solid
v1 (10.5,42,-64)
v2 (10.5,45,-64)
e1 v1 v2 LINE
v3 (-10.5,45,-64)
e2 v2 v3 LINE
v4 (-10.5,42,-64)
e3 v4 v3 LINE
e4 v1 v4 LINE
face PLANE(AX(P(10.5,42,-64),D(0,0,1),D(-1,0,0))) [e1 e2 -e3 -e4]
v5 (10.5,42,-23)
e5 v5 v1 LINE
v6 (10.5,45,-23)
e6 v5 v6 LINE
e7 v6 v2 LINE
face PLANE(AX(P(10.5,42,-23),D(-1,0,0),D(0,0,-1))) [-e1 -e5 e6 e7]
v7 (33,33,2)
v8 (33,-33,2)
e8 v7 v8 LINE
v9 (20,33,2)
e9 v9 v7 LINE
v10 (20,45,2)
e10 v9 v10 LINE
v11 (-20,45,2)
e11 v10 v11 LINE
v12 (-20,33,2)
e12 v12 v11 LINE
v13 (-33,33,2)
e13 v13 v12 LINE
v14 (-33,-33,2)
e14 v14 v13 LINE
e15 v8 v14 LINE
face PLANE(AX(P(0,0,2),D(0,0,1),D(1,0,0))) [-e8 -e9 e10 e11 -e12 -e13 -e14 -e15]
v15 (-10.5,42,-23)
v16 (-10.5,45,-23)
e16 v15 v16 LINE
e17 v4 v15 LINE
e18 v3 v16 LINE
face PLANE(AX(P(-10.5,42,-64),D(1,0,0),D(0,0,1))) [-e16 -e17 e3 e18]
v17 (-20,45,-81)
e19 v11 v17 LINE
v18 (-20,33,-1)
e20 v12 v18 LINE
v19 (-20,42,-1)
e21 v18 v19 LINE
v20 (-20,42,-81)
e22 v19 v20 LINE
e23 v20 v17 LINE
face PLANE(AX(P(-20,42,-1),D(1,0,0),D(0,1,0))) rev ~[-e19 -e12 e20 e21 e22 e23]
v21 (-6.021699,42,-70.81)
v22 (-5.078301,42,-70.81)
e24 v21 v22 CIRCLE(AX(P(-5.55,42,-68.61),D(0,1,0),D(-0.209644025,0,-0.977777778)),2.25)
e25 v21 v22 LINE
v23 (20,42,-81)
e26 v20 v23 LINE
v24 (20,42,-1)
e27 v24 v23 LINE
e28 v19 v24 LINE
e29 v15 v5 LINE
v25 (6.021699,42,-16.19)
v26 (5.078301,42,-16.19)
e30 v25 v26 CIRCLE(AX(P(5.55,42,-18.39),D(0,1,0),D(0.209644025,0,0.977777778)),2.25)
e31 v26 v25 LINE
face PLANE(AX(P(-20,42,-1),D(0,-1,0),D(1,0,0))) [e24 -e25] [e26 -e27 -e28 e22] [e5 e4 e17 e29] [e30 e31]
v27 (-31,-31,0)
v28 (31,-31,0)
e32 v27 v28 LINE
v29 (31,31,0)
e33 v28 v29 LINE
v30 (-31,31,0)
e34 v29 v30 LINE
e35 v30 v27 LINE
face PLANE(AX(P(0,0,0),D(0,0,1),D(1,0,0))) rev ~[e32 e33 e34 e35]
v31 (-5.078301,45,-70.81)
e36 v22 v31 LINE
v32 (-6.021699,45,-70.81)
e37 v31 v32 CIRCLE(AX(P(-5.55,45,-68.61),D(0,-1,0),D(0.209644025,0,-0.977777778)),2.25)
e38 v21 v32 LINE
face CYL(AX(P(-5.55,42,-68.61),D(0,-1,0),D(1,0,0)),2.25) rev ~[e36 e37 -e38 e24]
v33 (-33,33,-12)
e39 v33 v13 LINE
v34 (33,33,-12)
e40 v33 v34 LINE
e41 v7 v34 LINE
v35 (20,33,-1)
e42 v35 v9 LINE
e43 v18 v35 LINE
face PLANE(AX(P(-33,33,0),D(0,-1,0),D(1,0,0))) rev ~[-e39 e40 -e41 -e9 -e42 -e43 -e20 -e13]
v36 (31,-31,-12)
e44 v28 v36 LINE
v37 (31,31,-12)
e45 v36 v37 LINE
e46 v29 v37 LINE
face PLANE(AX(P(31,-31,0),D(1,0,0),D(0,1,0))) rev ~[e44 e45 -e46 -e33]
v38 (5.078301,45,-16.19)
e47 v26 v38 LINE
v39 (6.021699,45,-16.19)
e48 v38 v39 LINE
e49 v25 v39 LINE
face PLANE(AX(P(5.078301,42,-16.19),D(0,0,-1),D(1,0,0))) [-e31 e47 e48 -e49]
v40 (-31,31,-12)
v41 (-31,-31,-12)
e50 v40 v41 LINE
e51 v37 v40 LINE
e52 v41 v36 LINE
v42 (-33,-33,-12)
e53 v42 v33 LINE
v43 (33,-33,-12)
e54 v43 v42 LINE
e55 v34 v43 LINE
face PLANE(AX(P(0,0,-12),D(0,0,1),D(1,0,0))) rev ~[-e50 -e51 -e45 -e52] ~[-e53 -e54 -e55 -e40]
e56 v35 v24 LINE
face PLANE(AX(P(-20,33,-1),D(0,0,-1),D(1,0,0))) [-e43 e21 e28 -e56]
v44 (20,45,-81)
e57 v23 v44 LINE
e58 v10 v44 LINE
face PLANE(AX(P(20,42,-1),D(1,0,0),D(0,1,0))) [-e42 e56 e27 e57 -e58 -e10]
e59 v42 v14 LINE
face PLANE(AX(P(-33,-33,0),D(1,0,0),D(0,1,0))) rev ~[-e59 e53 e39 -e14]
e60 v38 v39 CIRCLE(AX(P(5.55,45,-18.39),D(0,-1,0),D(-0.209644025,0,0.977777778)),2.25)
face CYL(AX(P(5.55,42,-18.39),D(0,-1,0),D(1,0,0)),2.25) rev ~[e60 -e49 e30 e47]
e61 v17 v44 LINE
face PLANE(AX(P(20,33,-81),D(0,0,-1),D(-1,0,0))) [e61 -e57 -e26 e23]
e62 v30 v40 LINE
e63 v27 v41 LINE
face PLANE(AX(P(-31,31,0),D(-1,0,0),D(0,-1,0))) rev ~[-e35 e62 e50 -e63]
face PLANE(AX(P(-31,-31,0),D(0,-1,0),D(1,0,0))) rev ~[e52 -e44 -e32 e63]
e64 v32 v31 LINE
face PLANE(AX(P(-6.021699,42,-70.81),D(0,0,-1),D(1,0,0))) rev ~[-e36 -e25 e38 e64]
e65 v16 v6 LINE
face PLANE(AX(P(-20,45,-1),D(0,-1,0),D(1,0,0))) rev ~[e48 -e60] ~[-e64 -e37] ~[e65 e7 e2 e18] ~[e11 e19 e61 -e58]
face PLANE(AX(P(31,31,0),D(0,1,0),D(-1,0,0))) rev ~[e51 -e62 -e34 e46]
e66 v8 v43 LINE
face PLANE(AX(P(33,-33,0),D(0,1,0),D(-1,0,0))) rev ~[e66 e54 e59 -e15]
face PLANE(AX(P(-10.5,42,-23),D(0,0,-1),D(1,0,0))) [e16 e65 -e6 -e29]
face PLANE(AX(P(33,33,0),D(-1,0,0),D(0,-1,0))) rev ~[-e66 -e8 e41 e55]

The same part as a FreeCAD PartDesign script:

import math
import FreeCAD as App
import Part
import Sketcher
from FreeCAD import Vector
Q = App.Units.Quantity


def add_polygon(sketch, points):
    """Adds a closed chain of lines whose ends are joined by coincident constraints."""
    first, n = sketch.GeometryCount, len(points)
    for a, b in zip(points, points[1:] + points[:1]):
        sketch.addGeometry(Part.LineSegment(App.Vector(*a, 0), App.Vector(*b, 0)), False)
    for i in range(n):
        sketch.addConstraint(Sketcher.Constraint("Coincident", first + i, 2, first + (i + 1) % n, 1))

doc = App.newDocument("Part")
body = doc.addObject("PartDesign::Body", "Body")

# Sketch on XY plane
sketch1 = body.newObject("Sketcher::SketchObject", "Sketch")
sketch1.AttachmentSupport = (doc.getObject("XY_Plane"), [""])
sketch1.MapMode = "FlatFace"
add_polygon(sketch1, [(33, 33), (-33, 33), (-33, -33), (33, -33)])  # lines 0-3
sketch1.addConstraint([
    Sketcher.Constraint("Horizontal", 0),
    Sketcher.Constraint("Vertical", 1),
    Sketcher.Constraint("Horizontal", 2),
    Sketcher.Constraint("Vertical", 3),
    Sketcher.Constraint("Symmetric", 0, 2, 2, 2, -1, 1),
    Sketcher.Constraint("Equal", 2, 1),
    Sketcher.Constraint("DistanceX", 0, 2, 0, 1, Q("66 mm")),
])
pad1 = body.newObject("PartDesign::Pad", "Pad")
pad1.Profile = sketch1
pad1.Length = 2

# Sketch on XY plane
sketch2 = body.newObject("Sketcher::SketchObject", "Sketch001")
sketch2.AttachmentSupport = (doc.getObject("XY_Plane"), [""])
sketch2.MapMode = "FlatFace"
add_polygon(sketch2, [(33, 33), (-33, 33), (-33, -33), (33, -33)])  # lines 0-3
add_polygon(sketch2, [(31, -31), (-31, -31), (-31, 31), (31, 31)])  # lines 4-7
sketch2.addConstraint([
    Sketcher.Constraint("Horizontal", 0),
    Sketcher.Constraint("Vertical", 1),
    Sketcher.Constraint("Horizontal", 2),
    Sketcher.Constraint("Vertical", 3),
    Sketcher.Constraint("Horizontal", 4),
    Sketcher.Constraint("Vertical", 5),
    Sketcher.Constraint("Horizontal", 6),
    Sketcher.Constraint("Vertical", 7),
    Sketcher.Constraint("Symmetric", 0, 2, 2, 2, -1, 1),
    Sketcher.Constraint("Symmetric", 4, 2, 6, 2, -1, 1),
    Sketcher.Constraint("Equal", 2, 1),
    Sketcher.Constraint("Equal", 6, 5),
    Sketcher.Constraint("DistanceX", 4, 2, 4, 1, Q("62 mm")),
    Sketcher.Constraint("DistanceX", 1, 2, 4, 2, Q("2 mm")),
])
pad2 = body.newObject("PartDesign::Pad", "Pad001")
pad2.Profile = sketch2
pad2.Length = 12
pad2.Reversed = True

# Sketch on XZ plane
sketch3 = body.newObject("Sketcher::SketchObject", "Sketch002")
sketch3.AttachmentSupport = (doc.getObject("XZ_Plane"), [""])
sketch3.MapMode = "FlatFace"
sketch3.AttachmentOffset = App.Placement(Vector(0, 0, -33), App.Rotation())
add_polygon(sketch3, [(20, -1), (-20, -1), (-20, 2), (20, 2)])  # lines 0-3
sketch3.addConstraint([
    Sketcher.Constraint("Horizontal", 0),
    Sketcher.Constraint("Vertical", 1),
    Sketcher.Constraint("Horizontal", 2),
    Sketcher.Constraint("Vertical", 3),
    Sketcher.Constraint("DistanceX", 0, 2, 0, 1, Q("40 mm")),
    Sketcher.Constraint("DistanceY", 1, 1, 1, 2, Q("3 mm")),
    Sketcher.Constraint("DistanceX", 0, 2, -1, 1, Q("20 mm")),
    Sketcher.Constraint("DistanceY", 0, 2, -1, 1, Q("1 mm")),
])
pad3 = body.newObject("PartDesign::Pad", "Pad002")
pad3.Profile = sketch3
pad3.Length = 12
pad3.Reversed = True

# Sketch on XY plane
sketch4 = body.newObject("Sketcher::SketchObject", "Sketch003")
sketch4.AttachmentSupport = (doc.getObject("XY_Plane"), [""])
sketch4.MapMode = "FlatFace"
sketch4.AttachmentOffset = App.Placement(Vector(0, 0, -1), App.Rotation())
add_polygon(sketch4, [(-20, 42), (-20, 45), (20, 45), (20, 42)])  # lines 0-3
sketch4.addConstraint([
    Sketcher.Constraint("Vertical", 0),
    Sketcher.Constraint("Horizontal", 1),
    Sketcher.Constraint("Vertical", 2),
    Sketcher.Constraint("Horizontal", 3),
    Sketcher.Constraint("DistanceY", 0, 1, 0, 2, Q("3 mm")),
    Sketcher.Constraint("DistanceX", 1, 1, 1, 2, Q("40 mm")),
    Sketcher.Constraint("DistanceX", 0, 2, -1, 1, Q("20 mm")),
    Sketcher.Constraint("DistanceY", -1, 1, 0, 2, Q("45 mm")),
])
pad4 = body.newObject("PartDesign::Pad", "Pad003")
pad4.Profile = sketch4
pad4.Length = 80
pad4.Reversed = True

# Sketch on XZ plane
sketch5 = body.newObject("Sketcher::SketchObject", "Sketch004")
sketch5.AttachmentSupport = (doc.getObject("XZ_Plane"), [""])
sketch5.MapMode = "FlatFace"
sketch5.AttachmentOffset = App.Placement(Vector(0, 0, -42), App.Rotation())
add_polygon(sketch5, [(-10, -64), (10, -64), (10, -23), (-10, -23)])  # lines 0-3
sketch5.addConstraint([
    Sketcher.Constraint("Horizontal", 0),
    Sketcher.Constraint("Vertical", 1),
    Sketcher.Constraint("Horizontal", 2),
    Sketcher.Constraint("Vertical", 3),
    Sketcher.Constraint("DistanceX", 0, 1, 0, 2, Q("21 mm")),
    Sketcher.Constraint("DistanceY", 1, 1, 1, 2, Q("41 mm")),
    Sketcher.Constraint("DistanceY", 0, 2, -1, 1, Q("64 mm")),
    Sketcher.Constraint("DistanceX", -1, 1, 0, 2, Q("10.5 mm")),
])
pocket1 = body.newObject("PartDesign::Pocket", "Pocket")
pocket1.Profile = sketch5
pocket1.Length = 80

# Sketch on XZ plane
sketch6 = body.newObject("Sketcher::SketchObject", "Sketch005")
sketch6.AttachmentSupport = (doc.getObject("XZ_Plane"), [""])
sketch6.MapMode = "FlatFace"
sketch6.AttachmentOffset = App.Placement(Vector(0, 0, -42), App.Rotation())
sketch6.addGeometry([
    Part.LineSegment(Vector(-6, -70.8, 0), Vector(-5.1, -70.8, 0)),
    Part.ArcOfCircle(Part.Circle(Vector(-5.5, -68.6, 0), Vector(0, 0, 1), 2.2), math.radians(-78), math.radians(258)),
    Part.ArcOfCircle(Part.Circle(Vector(5.5, -18.4, 0), Vector(0, 0, 1), 2.2), math.radians(102), math.radians(438)),
    Part.LineSegment(Vector(6, -16.2, 0), Vector(5.1, -16.2, 0)),
], False)
sketch6.addConstraint([
    Sketcher.Constraint("Coincident", 0, 1, 1, 2),
    Sketcher.Constraint("Coincident", 1, 1, 0, 2),
    Sketcher.Constraint("Coincident", 2, 1, 3, 2),
    Sketcher.Constraint("Coincident", 3, 1, 2, 2),
    Sketcher.Constraint("Horizontal", 0),
    Sketcher.Constraint("Horizontal", 3),
    Sketcher.Constraint("Equal", 1, 2),
    Sketcher.Constraint("Equal", 0, 3),
    Sketcher.Constraint("Radius", 1, Q("2.25 mm")),
    Sketcher.Constraint("DistanceX", 1, 3, 2, 3, Q("11.1 mm")),
    Sketcher.Constraint("DistanceY", 0, 1, 1, 3, Q("2.2 mm")),
    Sketcher.Constraint("DistanceX", 1, 3, -1, 1, Q("5.55 mm")),
    Sketcher.Constraint("DistanceY", 1, 3, -1, 1, Q("68.61 mm")),
    Sketcher.Constraint("DistanceY", 2, 3, -1, 1, Q("18.39 mm")),
])
pocket2 = body.newObject("PartDesign::Pocket", "Pocket001")
pocket2.Profile = sketch6
pocket2.Length = 80

doc.recompute()
